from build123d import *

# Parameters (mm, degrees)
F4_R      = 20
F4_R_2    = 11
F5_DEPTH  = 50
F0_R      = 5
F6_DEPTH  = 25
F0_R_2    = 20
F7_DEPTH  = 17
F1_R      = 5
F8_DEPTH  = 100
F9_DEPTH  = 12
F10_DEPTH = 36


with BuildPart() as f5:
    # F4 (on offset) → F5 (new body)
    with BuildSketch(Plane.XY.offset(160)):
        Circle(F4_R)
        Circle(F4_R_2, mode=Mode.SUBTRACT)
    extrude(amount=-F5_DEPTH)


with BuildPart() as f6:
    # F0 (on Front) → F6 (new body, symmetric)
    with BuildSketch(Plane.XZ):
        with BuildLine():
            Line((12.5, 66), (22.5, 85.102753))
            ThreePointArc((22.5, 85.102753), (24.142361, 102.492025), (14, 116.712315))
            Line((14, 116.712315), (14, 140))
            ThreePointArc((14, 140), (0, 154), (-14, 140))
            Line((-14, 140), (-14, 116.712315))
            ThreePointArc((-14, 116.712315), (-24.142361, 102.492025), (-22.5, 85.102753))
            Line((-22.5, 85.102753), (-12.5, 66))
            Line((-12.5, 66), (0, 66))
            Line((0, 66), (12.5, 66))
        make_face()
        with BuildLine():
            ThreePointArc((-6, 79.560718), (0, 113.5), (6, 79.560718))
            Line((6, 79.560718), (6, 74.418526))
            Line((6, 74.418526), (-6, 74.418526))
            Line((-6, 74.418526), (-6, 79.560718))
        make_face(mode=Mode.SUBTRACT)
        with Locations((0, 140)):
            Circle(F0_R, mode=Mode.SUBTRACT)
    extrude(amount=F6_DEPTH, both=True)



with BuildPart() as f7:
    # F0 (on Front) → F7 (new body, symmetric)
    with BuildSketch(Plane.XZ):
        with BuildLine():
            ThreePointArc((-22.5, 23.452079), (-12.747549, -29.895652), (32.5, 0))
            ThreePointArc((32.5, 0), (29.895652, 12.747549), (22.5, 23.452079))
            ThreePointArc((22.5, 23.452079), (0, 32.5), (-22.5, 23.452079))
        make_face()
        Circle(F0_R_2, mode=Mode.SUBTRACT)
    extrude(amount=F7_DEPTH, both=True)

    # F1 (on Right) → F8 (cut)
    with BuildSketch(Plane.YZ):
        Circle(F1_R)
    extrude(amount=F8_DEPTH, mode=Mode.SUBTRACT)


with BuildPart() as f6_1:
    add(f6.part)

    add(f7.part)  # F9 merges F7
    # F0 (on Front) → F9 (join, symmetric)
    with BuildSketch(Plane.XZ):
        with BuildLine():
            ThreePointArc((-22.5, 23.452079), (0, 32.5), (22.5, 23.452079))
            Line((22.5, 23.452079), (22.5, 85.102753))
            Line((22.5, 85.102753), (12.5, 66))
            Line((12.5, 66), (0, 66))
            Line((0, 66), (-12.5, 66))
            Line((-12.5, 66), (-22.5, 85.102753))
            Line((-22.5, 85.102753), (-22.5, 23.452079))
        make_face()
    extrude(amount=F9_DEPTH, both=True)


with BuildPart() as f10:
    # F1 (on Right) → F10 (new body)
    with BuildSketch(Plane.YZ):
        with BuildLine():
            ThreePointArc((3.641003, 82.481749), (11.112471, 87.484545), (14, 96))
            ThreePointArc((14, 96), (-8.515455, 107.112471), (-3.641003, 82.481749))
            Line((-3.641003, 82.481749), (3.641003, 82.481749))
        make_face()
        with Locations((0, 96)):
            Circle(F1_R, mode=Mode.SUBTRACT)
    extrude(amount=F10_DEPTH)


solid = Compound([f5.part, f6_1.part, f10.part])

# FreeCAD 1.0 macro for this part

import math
import FreeCAD as App
import Part
import Sketcher

doc = App.newDocument("Part")
body = doc.addObject("PartDesign::Body", "Body")

sketch1 = body.newObject("Sketcher::SketchObject", "Sketch")
sketch1.AttachmentSupport = (doc.getObject("XY_Plane"), [""])
sketch1.MapMode = "FlatFace"
sketch1.AttachmentOffset = App.Placement(App.Vector(0, 0, 160), App.Rotation())
sketch1.addGeometry(Part.Circle(App.Vector(0, 0, 0), App.Vector(0, 0, 1), 20), False)
sketch1.addGeometry(Part.Circle(App.Vector(0, 0, 0), App.Vector(0, 0, 1), 11), False)
sketch1.addConstraint(Sketcher.Constraint("Coincident", 0, 3, -1, 1))
sketch1.addConstraint(Sketcher.Constraint("Coincident", 1, 3, -1, 1))
sketch1.addConstraint(Sketcher.Constraint("Diameter", 0, 40.0))
sketch1.addConstraint(Sketcher.Constraint("Diameter", 1, 22.0))
pad1 = body.newObject("PartDesign::Pad", "Pad")
pad1.Profile = sketch1
pad1.Length = 50
pad1.Reversed = True
body2 = doc.addObject("PartDesign::Body", "Body001")

sketch2 = body2.newObject("Sketcher::SketchObject", "Sketch001")
sketch2.AttachmentSupport = (doc.getObject("XZ_Plane001"), [""])
sketch2.MapMode = "FlatFace"
sketch2.addGeometry(Part.LineSegment(App.Vector(12.5, 66, 0), App.Vector(22.5, 85.102753, 0)), False)
sketch2.addGeometry(Part.ArcOfCircle(Part.Circle(App.Vector(-0.000001, 96, 0), App.Vector(0, 0, 1), 25), math.radians(-25.841931), math.radians(55.944201)), False)
sketch2.addGeometry(Part.LineSegment(App.Vector(14, 116.712315, 0), App.Vector(14, 140, 0)), False)
sketch2.addGeometry(Part.ArcOfCircle(Part.Circle(App.Vector(0, 140, 0), App.Vector(0, 0, 1), 14), math.radians(0), math.radians(180)), False)
sketch2.addGeometry(Part.LineSegment(App.Vector(-14, 140, 0), App.Vector(-14, 116.712315, 0)), False)
sketch2.addGeometry(Part.ArcOfCircle(Part.Circle(App.Vector(0.000001, 96, 0), App.Vector(0, 0, 1), 25), math.radians(124.055799), math.radians(205.841931)), False)
sketch2.addGeometry(Part.LineSegment(App.Vector(-22.5, 85.102753, 0), App.Vector(-12.5, 66, 0)), False)
sketch2.addGeometry(Part.LineSegment(App.Vector(-12.5, 66, 0), App.Vector(12.5, 66, 0)), False)
sketch2.addGeometry(Part.LineSegment(App.Vector(-6, 74.418526, 0), App.Vector(-6, 79.560718, 0)), False)
sketch2.addGeometry(Part.ArcOfCircle(Part.Circle(App.Vector(0, 96, 0), App.Vector(0, 0, 1), 17.5), math.radians(-69.948957), math.radians(249.948957)), False)
sketch2.addGeometry(Part.LineSegment(App.Vector(6, 79.560718, 0), App.Vector(6, 74.418526, 0)), False)
sketch2.addGeometry(Part.LineSegment(App.Vector(6, 74.418526, 0), App.Vector(-6, 74.418526, 0)), False)
sketch2.addGeometry(Part.Circle(App.Vector(0, 140, 0), App.Vector(0, 0, 1), 5), False)
sketch2.addConstraint(Sketcher.Constraint("Coincident", 0, 2, 1, 1))
sketch2.addConstraint(Sketcher.Constraint("Coincident", 1, 2, 2, 1))
sketch2.addConstraint(Sketcher.Constraint("Tangent", 2, 2, 3, 1))
sketch2.addConstraint(Sketcher.Constraint("Tangent", 3, 2, 4, 1))
sketch2.addConstraint(Sketcher.Constraint("Coincident", 4, 2, 5, 1))
sketch2.addConstraint(Sketcher.Constraint("Coincident", 5, 2, 6, 1))
sketch2.addConstraint(Sketcher.Constraint("Coincident", 6, 2, 7, 1))
sketch2.addConstraint(Sketcher.Constraint("Coincident", 7, 2, 0, 1))
sketch2.addConstraint(Sketcher.Constraint("Coincident", 8, 2, 9, 2))
sketch2.addConstraint(Sketcher.Constraint("Coincident", 9, 1, 10, 1))
sketch2.addConstraint(Sketcher.Constraint("Coincident", 10, 2, 11, 1))
sketch2.addConstraint(Sketcher.Constraint("Coincident", 11, 2, 8, 1))
sketch2.addConstraint(Sketcher.Constraint("Vertical", 2))
sketch2.addConstraint(Sketcher.Constraint("Vertical", 4))
sketch2.addConstraint(Sketcher.Constraint("Horizontal", 7))
sketch2.addConstraint(Sketcher.Constraint("Vertical", 8))
sketch2.addConstraint(Sketcher.Constraint("Vertical", 10))
sketch2.addConstraint(Sketcher.Constraint("Horizontal", 11))
sketch2.addConstraint(Sketcher.Constraint("Coincident", 5, 3, 1, 3))
sketch2.addConstraint(Sketcher.Constraint("Coincident", 9, 3, 1, 3))
sketch2.addConstraint(Sketcher.Constraint("Coincident", 12, 3, 3, 3))
sketch2.addConstraint(Sketcher.Constraint("Equal", 1, 5))
sketch2.addConstraint(Sketcher.Constraint("Symmetric", 1, 2, 4, 2, -2))
sketch2.addConstraint(Sketcher.Constraint("Horizontal", 0, 2, 5, 2))
sketch2.addConstraint(Sketcher.Constraint("Horizontal", 8, 2, 9, 1))
sketch2.addConstraint(Sketcher.Constraint("Equal", 0, 6))
sketch2.addConstraint(Sketcher.Constraint("Diameter", 12, 10.0))
sketch2.addConstraint(Sketcher.Constraint("Radius", 1, 25.0))
sketch2.addConstraint(Sketcher.Constraint("Radius", 3, 14.0))
sketch2.addConstraint(Sketcher.Constraint("Radius", 9, 17.5))
sketch2.addConstraint(Sketcher.Constraint("DistanceX", 7, 1, 7, 2, 25.0))
sketch2.addConstraint(Sketcher.Constraint("DistanceX", 11, 2, 11, 1, 12.0))
sketch2.addConstraint(Sketcher.Constraint("DistanceY", -1, 1, 1, 3, 96.0))
sketch2.addConstraint(Sketcher.Constraint("DistanceY", -1, 1, 3, 3, 140.0))
sketch2.addConstraint(Sketcher.Constraint("DistanceY", -1, 1, 6, 2, 66.0))
sketch2.addConstraint(Sketcher.Constraint("DistanceX", 5, 2, 0, 2, 45.0))
sketch2.addConstraint(Sketcher.Constraint("DistanceY", 8, 1, 8, 2, 5.142192))
pad2 = body2.newObject("PartDesign::Pad", "Pad001")
pad2.Profile = sketch2
pad2.Length = 50
pad2.Midplane = True
body3 = doc.addObject("PartDesign::Body", "Body002")

sketch3 = body3.newObject("Sketcher::SketchObject", "Sketch002")
sketch3.AttachmentSupport = (doc.getObject("XZ_Plane002"), [""])
sketch3.MapMode = "FlatFace"
sketch3.addGeometry(Part.ArcOfCircle(Part.Circle(App.Vector(0, 0, 0), App.Vector(0, 0, 1), 32.5), math.radians(133.813061), math.radians(360)), False)
sketch3.addGeometry(Part.ArcOfCircle(Part.Circle(App.Vector(0.000002, 0.000001, 0), App.Vector(0, 0, 1), 32.499998), math.radians(-0.000002), math.radians(46.18694)), False)
sketch3.addGeometry(Part.ArcOfCircle(Part.Circle(App.Vector(0, -0.000001, 0), App.Vector(0, 0, 1), 32.500001), math.radians(46.186939), math.radians(133.813061)), False)
sketch3.addGeometry(Part.Circle(App.Vector(0, 0, 0), App.Vector(0, 0, 1), 20), False)
sketch3.addConstraint(Sketcher.Constraint("Tangent", 0, 2, 1, 1))
sketch3.addConstraint(Sketcher.Constraint("Tangent", 1, 2, 2, 1))
sketch3.addConstraint(Sketcher.Constraint("Tangent", 2, 2, 0, 1))
sketch3.addConstraint(Sketcher.Constraint("Coincident", 0, 3, -1, 1))
sketch3.addConstraint(Sketcher.Constraint("Coincident", 3, 3, -1, 1))
sketch3.addConstraint(Sketcher.Constraint("PointOnObject", 0, 2, -1))
sketch3.addConstraint(Sketcher.Constraint("Horizontal", 1, 2, 2, 2))
sketch3.addConstraint(Sketcher.Constraint("Diameter", 3, 40.0))
sketch3.addConstraint(Sketcher.Constraint("Radius", 0, 32.5))
sketch3.addConstraint(Sketcher.Constraint("DistanceX", 1, 2, 0, 2, 10.0))
pad3 = body3.newObject("PartDesign::Pad", "Pad002")
pad3.Profile = sketch3
pad3.Length = 34
pad3.Midplane = True

sketch4 = body3.newObject("Sketcher::SketchObject", "Sketch003")
sketch4.AttachmentSupport = (doc.getObject("YZ_Plane002"), [""])
sketch4.MapMode = "FlatFace"
sketch4.addGeometry(Part.Circle(App.Vector(0, 0, 0), App.Vector(0, 0, 1), 5), False)
sketch4.addConstraint(Sketcher.Constraint("Coincident", 0, 3, -1, 1))
sketch4.addConstraint(Sketcher.Constraint("Diameter", 0, 10.0))
pocket1 = body3.newObject("PartDesign::Pocket", "Pocket")
pocket1.Profile = sketch4
pocket1.Length = 100
pocket1.Reversed = True
body2.AllowCompound = True
doc.recompute()

boolean = body2.newObject("PartDesign::Boolean", "Boolean")
boolean.Type = "Fuse"
boolean.addObjects([body3])

sketch5 = body2.newObject("Sketcher::SketchObject", "Sketch004")
sketch5.AttachmentSupport = (doc.getObject("XZ_Plane001"), [""])
sketch5.MapMode = "FlatFace"
sketch5.addGeometry(Part.ArcOfCircle(Part.Circle(App.Vector(0, -0.000001, 0), App.Vector(0, 0, 1), 32.500001), math.radians(46.186939), math.radians(133.813061)), False)
sketch5.addGeometry(Part.LineSegment(App.Vector(22.5, 23.452079, 0), App.Vector(22.5, 85.102753, 0)), False)
sketch5.addGeometry(Part.LineSegment(App.Vector(22.5, 85.102753, 0), App.Vector(12.5, 66, 0)), False)
sketch5.addGeometry(Part.LineSegment(App.Vector(12.5, 66, 0), App.Vector(-12.5, 66, 0)), False)
sketch5.addGeometry(Part.LineSegment(App.Vector(-12.5, 66, 0), App.Vector(-22.5, 85.102753, 0)), False)
sketch5.addGeometry(Part.LineSegment(App.Vector(-22.5, 85.102753, 0), App.Vector(-22.5, 23.452079, 0)), False)
sketch5.addConstraint(Sketcher.Constraint("Coincident", 0, 1, 1, 1))
sketch5.addConstraint(Sketcher.Constraint("Coincident", 1, 2, 2, 1))
sketch5.addConstraint(Sketcher.Constraint("Coincident", 2, 2, 3, 1))
sketch5.addConstraint(Sketcher.Constraint("Coincident", 3, 2, 4, 1))
sketch5.addConstraint(Sketcher.Constraint("Coincident", 4, 2, 5, 1))
sketch5.addConstraint(Sketcher.Constraint("Coincident", 5, 2, 0, 2))
sketch5.addConstraint(Sketcher.Constraint("Vertical", 1))
sketch5.addConstraint(Sketcher.Constraint("Horizontal", 3))
sketch5.addConstraint(Sketcher.Constraint("Vertical", 5))
sketch5.addConstraint(Sketcher.Constraint("Coincident", 0, 3, -1, 1))
sketch5.addConstraint(Sketcher.Constraint("Symmetric", 1, 2, 4, 2, -2))
sketch5.addConstraint(Sketcher.Constraint("Equal", 2, 4))
sketch5.addConstraint(Sketcher.Constraint("Radius", 0, 32.500001))
sketch5.addConstraint(Sketcher.Constraint("DistanceX", 3, 2, 3, 1, 25.0))
sketch5.addConstraint(Sketcher.Constraint("DistanceY", -1, 1, 2, 2, 66.0))
sketch5.addConstraint(Sketcher.Constraint("DistanceX", 2, 2, 1, 2, 10.0))
sketch5.addConstraint(Sketcher.Constraint("Distance", 2, 21.561892))
pad4 = body2.newObject("PartDesign::Pad", "Pad003")
pad4.Profile = sketch5
pad4.Length = 24
pad4.Midplane = True
body4 = doc.addObject("PartDesign::Body", "Body003")

sketch6 = body4.newObject("Sketcher::SketchObject", "Sketch005")
sketch6.AttachmentSupport = (doc.getObject("YZ_Plane003"), [""])
sketch6.MapMode = "FlatFace"
sketch6.addGeometry(Part.ArcOfCircle(Part.Circle(App.Vector(-0.000003, 96.000002, 0), App.Vector(0, 0, 1), 14.000003), math.radians(-74.925677), math.radians(-0.000008)), False)
sketch6.addGeometry(Part.ArcOfCircle(Part.Circle(App.Vector(0, 95.999999, 0), App.Vector(0, 0, 1), 14), math.radians(0.000002), math.radians(254.925687)), False)
sketch6.addGeometry(Part.LineSegment(App.Vector(-3.641003, 82.481749, 0), App.Vector(3.641003, 82.481749, 0)), False)
sketch6.addGeometry(Part.Circle(App.Vector(0, 96, 0), App.Vector(0, 0, 1), 5), False)
sketch6.addConstraint(Sketcher.Constraint("Tangent", 0, 2, 1, 1))
sketch6.addConstraint(Sketcher.Constraint("Coincident", 1, 2, 2, 1))
sketch6.addConstraint(Sketcher.Constraint("Coincident", 2, 2, 0, 1))
sketch6.addConstraint(Sketcher.Constraint("Horizontal", 2))
sketch6.addConstraint(Sketcher.Constraint("Coincident", 3, 3, 0, 3))
sketch6.addConstraint(Sketcher.Constraint("PointOnObject", 1, 3, -2))
sketch6.addConstraint(Sketcher.Constraint("PointOnObject", 3, 3, -2))
sketch6.addConstraint(Sketcher.Constraint("Horizontal", 3, 3, 0, 2))
sketch6.addConstraint(Sketcher.Constraint("Diameter", 3, 10.0))
sketch6.addConstraint(Sketcher.Constraint("Radius", 1, 14.0))
sketch6.addConstraint(Sketcher.Constraint("DistanceY", -1, 1, 0, 3, 96.000002))
sketch6.addConstraint(Sketcher.Constraint("DistanceX", 1, 2, 0, 3, 3.641))
pad5 = body4.newObject("PartDesign::Pad", "Pad004")
pad5.Profile = sketch6
pad5.Length = 36

doc.recompute()
